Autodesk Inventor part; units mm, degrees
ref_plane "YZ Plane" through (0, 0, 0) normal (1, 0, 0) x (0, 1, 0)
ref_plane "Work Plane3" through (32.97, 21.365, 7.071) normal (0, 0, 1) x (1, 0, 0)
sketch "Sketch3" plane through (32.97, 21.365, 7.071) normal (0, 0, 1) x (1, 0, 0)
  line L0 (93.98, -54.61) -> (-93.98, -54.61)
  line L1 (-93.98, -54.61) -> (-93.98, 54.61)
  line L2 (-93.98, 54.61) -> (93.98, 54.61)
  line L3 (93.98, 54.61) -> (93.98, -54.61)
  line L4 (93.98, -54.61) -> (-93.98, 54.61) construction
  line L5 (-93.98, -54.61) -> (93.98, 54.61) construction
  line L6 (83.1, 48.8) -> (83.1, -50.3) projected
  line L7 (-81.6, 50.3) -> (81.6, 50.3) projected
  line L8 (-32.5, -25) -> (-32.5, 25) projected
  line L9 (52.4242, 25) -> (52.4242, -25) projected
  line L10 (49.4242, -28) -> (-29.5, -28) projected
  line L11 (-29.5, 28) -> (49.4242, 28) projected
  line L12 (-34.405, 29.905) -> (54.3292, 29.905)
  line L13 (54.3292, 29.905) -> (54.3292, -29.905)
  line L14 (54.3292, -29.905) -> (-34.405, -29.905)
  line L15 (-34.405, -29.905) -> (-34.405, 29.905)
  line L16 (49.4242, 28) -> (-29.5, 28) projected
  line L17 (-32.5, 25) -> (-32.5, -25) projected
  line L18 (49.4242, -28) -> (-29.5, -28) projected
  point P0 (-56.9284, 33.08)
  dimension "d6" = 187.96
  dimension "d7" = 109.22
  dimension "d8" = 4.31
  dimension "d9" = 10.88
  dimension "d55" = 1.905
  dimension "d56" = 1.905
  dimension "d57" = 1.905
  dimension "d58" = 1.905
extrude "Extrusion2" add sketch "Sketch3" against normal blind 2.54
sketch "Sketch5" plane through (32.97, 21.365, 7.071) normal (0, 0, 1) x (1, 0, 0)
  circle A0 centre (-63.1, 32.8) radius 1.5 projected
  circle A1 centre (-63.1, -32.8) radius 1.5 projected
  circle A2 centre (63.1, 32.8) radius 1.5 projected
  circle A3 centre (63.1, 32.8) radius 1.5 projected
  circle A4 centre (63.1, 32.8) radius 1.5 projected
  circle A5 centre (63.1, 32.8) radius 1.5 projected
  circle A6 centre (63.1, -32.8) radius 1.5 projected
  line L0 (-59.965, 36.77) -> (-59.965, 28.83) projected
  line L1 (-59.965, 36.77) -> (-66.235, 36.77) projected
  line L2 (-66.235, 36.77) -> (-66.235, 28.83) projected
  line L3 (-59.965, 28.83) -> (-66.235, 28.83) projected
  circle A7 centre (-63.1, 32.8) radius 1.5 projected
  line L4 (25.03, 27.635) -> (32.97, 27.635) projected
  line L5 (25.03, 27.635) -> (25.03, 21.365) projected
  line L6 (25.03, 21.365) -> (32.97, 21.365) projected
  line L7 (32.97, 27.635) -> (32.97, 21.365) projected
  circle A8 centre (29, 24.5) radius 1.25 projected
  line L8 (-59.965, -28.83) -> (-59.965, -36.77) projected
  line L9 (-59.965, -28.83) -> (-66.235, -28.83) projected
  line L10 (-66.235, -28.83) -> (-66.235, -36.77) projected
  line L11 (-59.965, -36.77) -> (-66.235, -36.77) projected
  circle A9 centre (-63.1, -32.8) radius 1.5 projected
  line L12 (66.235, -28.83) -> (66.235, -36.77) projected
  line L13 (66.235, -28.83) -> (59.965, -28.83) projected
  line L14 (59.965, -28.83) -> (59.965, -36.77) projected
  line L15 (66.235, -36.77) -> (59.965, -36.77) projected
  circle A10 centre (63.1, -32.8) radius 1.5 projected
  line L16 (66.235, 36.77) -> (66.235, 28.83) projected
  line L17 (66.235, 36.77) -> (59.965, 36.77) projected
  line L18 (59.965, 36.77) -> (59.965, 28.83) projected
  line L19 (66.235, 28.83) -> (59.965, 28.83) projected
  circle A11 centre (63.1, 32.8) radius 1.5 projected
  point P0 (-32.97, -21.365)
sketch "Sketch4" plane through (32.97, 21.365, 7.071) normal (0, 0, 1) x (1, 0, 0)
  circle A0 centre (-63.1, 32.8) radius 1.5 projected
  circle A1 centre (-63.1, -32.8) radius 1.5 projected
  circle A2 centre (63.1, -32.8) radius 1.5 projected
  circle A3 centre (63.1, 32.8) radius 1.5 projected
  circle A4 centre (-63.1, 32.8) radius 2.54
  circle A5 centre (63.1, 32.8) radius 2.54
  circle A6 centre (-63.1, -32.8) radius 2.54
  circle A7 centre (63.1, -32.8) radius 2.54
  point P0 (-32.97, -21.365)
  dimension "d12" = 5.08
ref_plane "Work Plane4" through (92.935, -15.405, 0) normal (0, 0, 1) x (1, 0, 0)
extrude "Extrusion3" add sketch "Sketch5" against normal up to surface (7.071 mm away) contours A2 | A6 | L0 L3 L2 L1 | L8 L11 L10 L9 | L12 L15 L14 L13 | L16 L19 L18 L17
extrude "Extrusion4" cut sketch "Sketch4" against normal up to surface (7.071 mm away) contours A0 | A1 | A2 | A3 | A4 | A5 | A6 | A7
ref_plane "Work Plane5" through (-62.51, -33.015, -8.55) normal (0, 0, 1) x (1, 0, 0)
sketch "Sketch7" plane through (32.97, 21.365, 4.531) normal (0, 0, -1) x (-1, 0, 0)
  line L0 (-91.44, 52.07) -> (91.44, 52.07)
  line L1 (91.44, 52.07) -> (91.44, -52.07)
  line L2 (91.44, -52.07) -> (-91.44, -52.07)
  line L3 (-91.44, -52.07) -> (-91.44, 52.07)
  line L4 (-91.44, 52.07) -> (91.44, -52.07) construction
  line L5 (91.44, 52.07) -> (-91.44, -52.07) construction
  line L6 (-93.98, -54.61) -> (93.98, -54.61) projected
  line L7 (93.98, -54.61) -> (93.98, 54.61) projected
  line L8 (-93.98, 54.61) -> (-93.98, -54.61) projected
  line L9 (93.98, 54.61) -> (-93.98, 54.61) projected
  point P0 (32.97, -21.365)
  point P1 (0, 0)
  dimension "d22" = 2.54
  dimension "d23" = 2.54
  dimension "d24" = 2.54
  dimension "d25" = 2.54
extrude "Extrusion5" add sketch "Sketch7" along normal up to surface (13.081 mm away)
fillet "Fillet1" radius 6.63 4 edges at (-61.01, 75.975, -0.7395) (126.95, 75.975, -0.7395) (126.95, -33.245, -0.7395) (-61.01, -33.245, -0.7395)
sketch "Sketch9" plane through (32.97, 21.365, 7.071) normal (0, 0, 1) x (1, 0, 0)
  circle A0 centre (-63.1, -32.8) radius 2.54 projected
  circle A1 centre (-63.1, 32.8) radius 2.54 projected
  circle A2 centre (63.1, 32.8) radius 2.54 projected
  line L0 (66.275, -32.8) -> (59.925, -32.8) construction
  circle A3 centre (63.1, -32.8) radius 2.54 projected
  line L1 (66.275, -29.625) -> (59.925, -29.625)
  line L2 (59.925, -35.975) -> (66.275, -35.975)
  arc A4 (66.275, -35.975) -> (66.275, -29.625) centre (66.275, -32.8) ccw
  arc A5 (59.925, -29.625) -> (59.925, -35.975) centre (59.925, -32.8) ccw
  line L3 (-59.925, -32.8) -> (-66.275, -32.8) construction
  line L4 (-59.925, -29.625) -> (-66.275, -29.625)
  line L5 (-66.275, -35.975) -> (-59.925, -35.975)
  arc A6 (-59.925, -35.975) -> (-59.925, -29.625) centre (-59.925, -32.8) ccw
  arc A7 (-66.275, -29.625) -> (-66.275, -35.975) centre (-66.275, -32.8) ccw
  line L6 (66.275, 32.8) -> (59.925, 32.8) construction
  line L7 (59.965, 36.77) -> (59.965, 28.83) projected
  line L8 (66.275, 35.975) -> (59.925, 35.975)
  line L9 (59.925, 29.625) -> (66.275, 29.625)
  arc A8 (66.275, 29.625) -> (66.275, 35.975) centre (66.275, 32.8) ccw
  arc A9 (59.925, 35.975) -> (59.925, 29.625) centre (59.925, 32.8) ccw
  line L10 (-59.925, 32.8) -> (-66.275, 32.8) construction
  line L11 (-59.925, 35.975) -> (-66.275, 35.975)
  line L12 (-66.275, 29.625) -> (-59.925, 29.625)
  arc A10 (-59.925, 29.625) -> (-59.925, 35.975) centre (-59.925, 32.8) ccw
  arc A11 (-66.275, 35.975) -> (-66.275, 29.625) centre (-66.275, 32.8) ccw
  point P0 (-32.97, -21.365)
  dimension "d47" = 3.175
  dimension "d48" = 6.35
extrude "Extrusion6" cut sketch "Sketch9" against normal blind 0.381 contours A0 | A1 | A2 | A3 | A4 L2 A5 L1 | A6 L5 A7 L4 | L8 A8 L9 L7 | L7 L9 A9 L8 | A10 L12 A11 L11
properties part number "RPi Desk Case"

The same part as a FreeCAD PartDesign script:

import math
import FreeCAD as App
import Part
import Sketcher

V = App.Vector
Q = App.Units.Quantity


def edges_at(feature, points):
    """Names of the edges that pass closest to the given points."""
    edges = feature.Shape.Edges
    near = lambda p: min(range(len(edges)), key=lambda i: edges[i].distToShape(Part.Vertex(*p))[0])
    return sorted({f"Edge{near(p) + 1}" for p in points})


def add_polygon(sketch, points):
    """Adds a closed chain of lines whose ends are joined by coincident constraints."""
    first, n = sketch.GeometryCount, len(points)
    for a, b in zip(points, points[1:] + points[:1]):
        sketch.addGeometry(Part.LineSegment(App.Vector(*a, 0), App.Vector(*b, 0)), False)
    for i in range(n):
        sketch.addConstraint(Sketcher.Constraint("Coincident", first + i, 2, first + (i + 1) % n, 1))

doc = App.newDocument("Part")
body = doc.addObject("PartDesign::Body", "Body")

# Sketch on XY plane
sketch1 = doc.addObject("Sketcher::SketchObject", "Sketch")
body.addObject(sketch1)
sketch1.AttachmentSupport = (doc.XY_Plane, [""])
sketch1.MapMode = "FlatFace"
sketch1.AttachmentOffset = App.Placement(V(0, 0, 7.071), App.Rotation())
add_polygon(sketch1, [(-61, -33), (127, -33), (127, 76), (-61, 76)])  # lines 0-3
add_polygon(sketch1, [(-1, -9), (-1, 51), (87, 51), (87, -9)])  # lines 4-7
sketch1.addConstraint(Sketcher.Constraint("Horizontal", 0))
sketch1.addConstraint(Sketcher.Constraint("Vertical", 1))
sketch1.addConstraint(Sketcher.Constraint("Horizontal", 2))
sketch1.addConstraint(Sketcher.Constraint("Vertical", 3))
sketch1.addConstraint(Sketcher.Constraint("Vertical", 4))
sketch1.addConstraint(Sketcher.Constraint("Horizontal", 5))
sketch1.addConstraint(Sketcher.Constraint("Vertical", 6))
sketch1.addConstraint(Sketcher.Constraint("Horizontal", 7))
sketch1.addConstraint(Sketcher.Constraint("DistanceX", 0, 1, 0, 2, Q("7.4 in")))
sketch1.addConstraint(Sketcher.Constraint("DistanceY", 1, 1, 1, 2, Q("4.3 in")))
sketch1.addConstraint(Sketcher.Constraint("DistanceX", 5, 1, 5, 2, 88.7342))
sketch1.addConstraint(Sketcher.Constraint("DistanceY", 4, 1, 4, 2, 59.81))
sketch1.addConstraint(Sketcher.Constraint("DistanceX", 4, 2, -1, 1, Q("0.0565 in")))
sketch1.addConstraint(Sketcher.Constraint("DistanceY", -1, 1, 4, 2, Q("2.0185 in")))
sketch1.addConstraint(Sketcher.Constraint("DistanceX", -1, 1, 0, 2, 126.95))
sketch1.addConstraint(Sketcher.Constraint("DistanceY", 0, 2, -1, 1, 33.245))
pad1 = doc.addObject("PartDesign::Pad", "Pad")
body.addObject(pad1)
pad1.Profile = sketch1
pad1.Length = Q("0.1 in")
pad1.Reversed = True

# Sketch on XY plane
sketch2 = doc.addObject("Sketcher::SketchObject", "Sketch001")
body.addObject(sketch2)
sketch2.AttachmentSupport = (doc.XY_Plane, [""])
sketch2.MapMode = "FlatFace"
sketch2.AttachmentOffset = App.Placement(V(0, 0, 7.071), App.Rotation())
add_polygon(sketch2, [(99.2, 50.2), (99.2, 58.1), (92.9, 58.1), (92.9, 50.2)])  # lines 0-3
add_polygon(sketch2, [(99.2, -15.4), (99.2, -7.5), (92.9, -7.5), (92.9, -15.4)])  # lines 4-7
add_polygon(sketch2, [(-27, 50.2), (-27, 58.1), (-33.3, 58.1), (-33.3, 50.2)])  # lines 8-11
sketch2.addGeometry(Part.Circle(V(-30.1, 54.2, 0), V(0, 0, 1), 1.5), False)  # 12
add_polygon(sketch2, [(-27, -15.4), (-27, -7.5), (-33.3, -7.5), (-33.3, -15.4)])  # lines 13-16
sketch2.addGeometry(Part.Circle(V(-30.1, -11.4, 0), V(0, 0, 1), 1.5), False)  # 17
sketch2.addConstraint(Sketcher.Constraint("Vertical", 0))
sketch2.addConstraint(Sketcher.Constraint("Horizontal", 1))
sketch2.addConstraint(Sketcher.Constraint("Vertical", 2))
sketch2.addConstraint(Sketcher.Constraint("Horizontal", 3))
sketch2.addConstraint(Sketcher.Constraint("Vertical", 4))
sketch2.addConstraint(Sketcher.Constraint("Horizontal", 5))
sketch2.addConstraint(Sketcher.Constraint("Vertical", 6))
sketch2.addConstraint(Sketcher.Constraint("Horizontal", 7))
sketch2.addConstraint(Sketcher.Constraint("Vertical", 8))
sketch2.addConstraint(Sketcher.Constraint("Horizontal", 9))
sketch2.addConstraint(Sketcher.Constraint("Vertical", 10))
sketch2.addConstraint(Sketcher.Constraint("Horizontal", 11))
sketch2.addConstraint(Sketcher.Constraint("Vertical", 13))
sketch2.addConstraint(Sketcher.Constraint("Horizontal", 14))
sketch2.addConstraint(Sketcher.Constraint("Vertical", 15))
sketch2.addConstraint(Sketcher.Constraint("Horizontal", 16))
sketch2.addConstraint(Sketcher.Constraint("Equal", 12, 17))
sketch2.addConstraint(Sketcher.Constraint("Horizontal", 1, 2, 8, 2))
sketch2.addConstraint(Sketcher.Constraint("Horizontal", 3, 2, 10, 2))
sketch2.addConstraint(Sketcher.Constraint("Horizontal", 5, 2, 13, 2))
sketch2.addConstraint(Sketcher.Constraint("Horizontal", 7, 2, 15, 2))
sketch2.addConstraint(Sketcher.Constraint("Vertical", 12, 3, 17, 3))
sketch2.addConstraint(Sketcher.Constraint("Vertical", 3, 2, 4, 2))
sketch2.addConstraint(Sketcher.Constraint("Vertical", 2, 2, 5, 2))
sketch2.addConstraint(Sketcher.Constraint("Vertical", 11, 2, 13, 2))
sketch2.addConstraint(Sketcher.Constraint("Vertical", 10, 2, 14, 2))
sketch2.addConstraint(Sketcher.Constraint("Equal", 7, 9))
sketch2.addConstraint(Sketcher.Constraint("Equal", 2, 4))
sketch2.addConstraint(Sketcher.Constraint("Diameter", 12, Q("0.1181 in")))
sketch2.addConstraint(Sketcher.Constraint("DistanceY", 0, 1, 0, 2, Q("0.3126 in")))
sketch2.addConstraint(Sketcher.Constraint("DistanceX", 1, 2, 1, 1, 6.27))
sketch2.addConstraint(Sketcher.Constraint("DistanceY", 17, 3, -1, 1, Q("0.4502 in")))
sketch2.addConstraint(Sketcher.Constraint("DistanceX", -1, 1, 0, 2, Q("3.9057 in")))
sketch2.addConstraint(Sketcher.Constraint("DistanceY", 4, 2, -1, 1, Q("0.2939 in")))
sketch2.addConstraint(Sketcher.Constraint("DistanceX", 8, 2, -1, 1, Q("1.0628 in")))
sketch2.addConstraint(Sketcher.Constraint("DistanceY", 12, 3, 0, 2, Q("0.1563 in")))
sketch2.addConstraint(Sketcher.Constraint("DistanceX", 12, 3, -1, 1, 30.13))
sketch2.addConstraint(Sketcher.Constraint("DistanceY", -1, 1, 12, 3, 54.165))
pad2 = doc.addObject("PartDesign::Pad", "Pad001")
body.addObject(pad2)
pad2.Profile = sketch2
pad2.Length = 7.071
pad2.Reversed = True

# Sketch on XY plane
sketch3 = doc.addObject("Sketcher::SketchObject", "Sketch002")
body.addObject(sketch3)
sketch3.AttachmentSupport = (doc.XY_Plane, [""])
sketch3.MapMode = "FlatFace"
sketch3.AttachmentOffset = App.Placement(V(0, 0, 7.071), App.Rotation())
sketch3.addGeometry(Part.Circle(V(-30.1, 54.2, 0), V(0, 0, 1), 2.5), False)
sketch3.addGeometry(Part.Circle(V(-30.1, -11.4, 0), V(0, 0, 1), 2.5), False)
sketch3.addGeometry(Part.Circle(V(96.1, -11.4, 0), V(0, 0, 1), 2.5), False)
sketch3.addGeometry(Part.Circle(V(96.1, 54.2, 0), V(0, 0, 1), 2.5), False)
sketch3.addConstraint(Sketcher.Constraint("Equal", 0, 1))
sketch3.addConstraint(Sketcher.Constraint("Equal", 1, 2))
sketch3.addConstraint(Sketcher.Constraint("Equal", 2, 3))
sketch3.addConstraint(Sketcher.Constraint("Horizontal", 1, 3, 2, 3))
sketch3.addConstraint(Sketcher.Constraint("Horizontal", 0, 3, 3, 3))
sketch3.addConstraint(Sketcher.Constraint("Vertical", 0, 3, 1, 3))
sketch3.addConstraint(Sketcher.Constraint("Vertical", 2, 3, 3, 3))
sketch3.addConstraint(Sketcher.Constraint("Diameter", 0, Q("0.2 in")))
sketch3.addConstraint(Sketcher.Constraint("DistanceY", 1, 3, -1, 1, Q("0.4502 in")))
sketch3.addConstraint(Sketcher.Constraint("DistanceX", 1, 3, 2, 3, Q("4.9685 in")))
sketch3.addConstraint(Sketcher.Constraint("DistanceX", 0, 3, -1, 1, 30.13))
sketch3.addConstraint(Sketcher.Constraint("DistanceY", -1, 1, 0, 3, 54.165))
pocket1 = doc.addObject("PartDesign::Pocket", "Pocket")
body.addObject(pocket1)
pocket1.Profile = sketch3
pocket1.Length = 7.071

# Sketch on XY plane
sketch4 = doc.addObject("Sketcher::SketchObject", "Sketch003")
body.addObject(sketch4)
sketch4.AttachmentSupport = (doc.XY_Plane, [""])
sketch4.MapMode = "FlatFace"
sketch4.AttachmentOffset = App.Placement(V(0, 0, 4.531), App.Rotation())
add_polygon(sketch4, [(127, 76), (127, -33), (-61, -33), (-61, 76)])  # lines 0-3
add_polygon(sketch4, [(124, -31), (124, 73), (-58, 73), (-58, -31)])  # lines 4-7
sketch4.addConstraint(Sketcher.Constraint("Vertical", 0))
sketch4.addConstraint(Sketcher.Constraint("Horizontal", 1))
sketch4.addConstraint(Sketcher.Constraint("Vertical", 2))
sketch4.addConstraint(Sketcher.Constraint("Horizontal", 3))
sketch4.addConstraint(Sketcher.Constraint("Vertical", 4))
sketch4.addConstraint(Sketcher.Constraint("Horizontal", 5))
sketch4.addConstraint(Sketcher.Constraint("Vertical", 6))
sketch4.addConstraint(Sketcher.Constraint("Horizontal", 7))
sketch4.addConstraint(Sketcher.Constraint("DistanceX", 4, 2, 3, 2, Q("0.1 in")))
sketch4.addConstraint(Sketcher.Constraint("DistanceY", 4, 2, 3, 2, Q("0.1 in")))
sketch4.addConstraint(Sketcher.Constraint("DistanceX", 2, 2, 5, 2, Q("0.1 in")))
sketch4.addConstraint(Sketcher.Constraint("DistanceY", 1, 2, 6, 2, Q("0.1 in")))
sketch4.addConstraint(Sketcher.Constraint("DistanceX", 1, 2, 1, 1, Q("7.4 in")))
sketch4.addConstraint(Sketcher.Constraint("DistanceY", 0, 2, 0, 1, Q("4.3 in")))
sketch4.addConstraint(Sketcher.Constraint("DistanceX", -1, 1, 0, 2, 126.95))
sketch4.addConstraint(Sketcher.Constraint("DistanceY", 0, 2, -1, 1, 33.245))
pad3 = doc.addObject("PartDesign::Pad", "Pad002")
body.addObject(pad3)
pad3.Profile = sketch4
pad3.Length = Q("0.515 in")
pad3.Reversed = True
doc.recompute()

fillet = doc.addObject("PartDesign::Fillet", "Fillet")
body.addObject(fillet)
fillet.Base = (pad3, edges_at(pad3, [
    (-61.01, 75.975, -0.74),
    (126.95, 75.975, -0.74),
    (126.95, -33.245, -0.74),
    (-61.01, -33.245, -0.74),
]))
fillet.Radius = 6.63

# Sketch on XY plane
sketch5 = doc.addObject("Sketcher::SketchObject", "Sketch004")
body.addObject(sketch5)
sketch5.AttachmentSupport = (doc.XY_Plane, [""])
sketch5.MapMode = "FlatFace"
sketch5.AttachmentOffset = App.Placement(V(0, 0, 7.071), App.Rotation())
sketch5.addGeometry(Part.ArcOfCircle(Part.Circle(V(-27, -11.4, 0), V(0, 0, 1), 3.2), math.radians(-90), math.radians(90)), False)
sketch5.addGeometry(Part.LineSegment(V(-27, -8.3, 0), V(-33.3, -8.3, 0)), False)
sketch5.addGeometry(Part.ArcOfCircle(Part.Circle(V(-33.3, -11.4, 0), V(0, 0, 1), 3.2), math.radians(90), math.radians(270)), False)
sketch5.addGeometry(Part.LineSegment(V(-33.3, -14.6, 0), V(-27, -14.6, 0)), False)
sketch5.addGeometry(Part.ArcOfCircle(Part.Circle(V(-27, 54.2, 0), V(0, 0, 1), 3.2), math.radians(-90), math.radians(90)), False)
sketch5.addGeometry(Part.LineSegment(V(-27, 57.3, 0), V(-33.3, 57.3, 0)), False)
sketch5.addGeometry(Part.ArcOfCircle(Part.Circle(V(-33.3, 54.2, 0), V(0, 0, 1), 3.2), math.radians(90), math.radians(270)), False)
sketch5.addGeometry(Part.LineSegment(V(-33.3, 51, 0), V(-27, 51, 0)), False)
sketch5.addGeometry(Part.LineSegment(V(99.2, 57.3, 0), V(92.9, 57.3, 0)), False)
sketch5.addGeometry(Part.ArcOfCircle(Part.Circle(V(92.9, 54.2, 0), V(0, 0, 1), 3.2), math.radians(90), math.radians(270)), False)
sketch5.addGeometry(Part.LineSegment(V(92.9, 51, 0), V(99.2, 51, 0)), False)
sketch5.addGeometry(Part.ArcOfCircle(Part.Circle(V(99.2, 54.2, 0), V(0, 0, 1), 3.2), math.radians(-90), math.radians(90)), False)
sketch5.addGeometry(Part.ArcOfCircle(Part.Circle(V(99.2, -11.4, 0), V(0, 0, 1), 3.2), math.radians(-90), math.radians(90)), False)
sketch5.addGeometry(Part.LineSegment(V(99.2, -8.3, 0), V(92.9, -8.3, 0)), False)
sketch5.addGeometry(Part.ArcOfCircle(Part.Circle(V(92.9, -11.4, 0), V(0, 0, 1), 3.2), math.radians(90), math.radians(270)), False)
sketch5.addGeometry(Part.LineSegment(V(92.9, -14.6, 0), V(99.2, -14.6, 0)), False)
sketch5.addConstraint(Sketcher.Constraint("Tangent", 0, 2, 1, 1))
sketch5.addConstraint(Sketcher.Constraint("Tangent", 1, 2, 2, 1))
sketch5.addConstraint(Sketcher.Constraint("Tangent", 2, 2, 3, 1))
sketch5.addConstraint(Sketcher.Constraint("Tangent", 3, 2, 0, 1))
sketch5.addConstraint(Sketcher.Constraint("Tangent", 4, 2, 5, 1))
sketch5.addConstraint(Sketcher.Constraint("Tangent", 5, 2, 6, 1))
sketch5.addConstraint(Sketcher.Constraint("Tangent", 6, 2, 7, 1))
sketch5.addConstraint(Sketcher.Constraint("Tangent", 7, 2, 4, 1))
sketch5.addConstraint(Sketcher.Constraint("Tangent", 8, 2, 9, 1))
sketch5.addConstraint(Sketcher.Constraint("Tangent", 9, 2, 10, 1))
sketch5.addConstraint(Sketcher.Constraint("Tangent", 10, 2, 11, 1))
sketch5.addConstraint(Sketcher.Constraint("Tangent", 11, 2, 8, 1))
sketch5.addConstraint(Sketcher.Constraint("Tangent", 12, 2, 13, 1))
sketch5.addConstraint(Sketcher.Constraint("Tangent", 13, 2, 14, 1))
sketch5.addConstraint(Sketcher.Constraint("Tangent", 14, 2, 15, 1))
sketch5.addConstraint(Sketcher.Constraint("Tangent", 15, 2, 12, 1))
sketch5.addConstraint(Sketcher.Constraint("Horizontal", 1))
sketch5.addConstraint(Sketcher.Constraint("Horizontal", 3))
sketch5.addConstraint(Sketcher.Constraint("Horizontal", 5))
sketch5.addConstraint(Sketcher.Constraint("Horizontal", 7))
sketch5.addConstraint(Sketcher.Constraint("Horizontal", 8))
sketch5.addConstraint(Sketcher.Constraint("Horizontal", 10))
sketch5.addConstraint(Sketcher.Constraint("Horizontal", 13))
sketch5.addConstraint(Sketcher.Constraint("Horizontal", 15))
sketch5.addConstraint(Sketcher.Constraint("Equal", 2, 4))
sketch5.addConstraint(Sketcher.Constraint("Equal", 6, 9))
sketch5.addConstraint(Sketcher.Constraint("Equal", 11, 12))
sketch5.addConstraint(Sketcher.Constraint("Horizontal", 6, 3, 9, 3))
sketch5.addConstraint(Sketcher.Constraint("Horizontal", 2, 3, 12, 3))
sketch5.addConstraint(Sketcher.Constraint("Vertical", 0, 3, 4, 3))
sketch5.addConstraint(Sketcher.Constraint("Vertical", 2, 3, 6, 3))
sketch5.addConstraint(Sketcher.Constraint("Vertical", 11, 3, 12, 3))
sketch5.addConstraint(Sketcher.Constraint("Vertical", 9, 3, 14, 3))
sketch5.addConstraint(Sketcher.Constraint("Equal", 7, 8))
sketch5.addConstraint(Sketcher.Constraint("Radius", 0, Q("0.125 in")))
sketch5.addConstraint(Sketcher.Constraint("DistanceX", 1, 2, 1, 1, Q("0.25 in")))
sketch5.addConstraint(Sketcher.Constraint("DistanceY", 0, 3, -1, 1, Q("0.4502 in")))
sketch5.addConstraint(Sketcher.Constraint("DistanceX", 4, 3, 9, 3, Q("4.7185 in")))
sketch5.addConstraint(Sketcher.Constraint("DistanceX", 0, 3, -1, 1, 26.955))
sketch5.addConstraint(Sketcher.Constraint("DistanceY", -1, 1, 4, 3, 54.165))
pocket2 = doc.addObject("PartDesign::Pocket", "Pocket001")
body.addObject(pocket2)
pocket2.Profile = sketch5
pocket2.Length = Q("0.015 in")

doc.recompute()
